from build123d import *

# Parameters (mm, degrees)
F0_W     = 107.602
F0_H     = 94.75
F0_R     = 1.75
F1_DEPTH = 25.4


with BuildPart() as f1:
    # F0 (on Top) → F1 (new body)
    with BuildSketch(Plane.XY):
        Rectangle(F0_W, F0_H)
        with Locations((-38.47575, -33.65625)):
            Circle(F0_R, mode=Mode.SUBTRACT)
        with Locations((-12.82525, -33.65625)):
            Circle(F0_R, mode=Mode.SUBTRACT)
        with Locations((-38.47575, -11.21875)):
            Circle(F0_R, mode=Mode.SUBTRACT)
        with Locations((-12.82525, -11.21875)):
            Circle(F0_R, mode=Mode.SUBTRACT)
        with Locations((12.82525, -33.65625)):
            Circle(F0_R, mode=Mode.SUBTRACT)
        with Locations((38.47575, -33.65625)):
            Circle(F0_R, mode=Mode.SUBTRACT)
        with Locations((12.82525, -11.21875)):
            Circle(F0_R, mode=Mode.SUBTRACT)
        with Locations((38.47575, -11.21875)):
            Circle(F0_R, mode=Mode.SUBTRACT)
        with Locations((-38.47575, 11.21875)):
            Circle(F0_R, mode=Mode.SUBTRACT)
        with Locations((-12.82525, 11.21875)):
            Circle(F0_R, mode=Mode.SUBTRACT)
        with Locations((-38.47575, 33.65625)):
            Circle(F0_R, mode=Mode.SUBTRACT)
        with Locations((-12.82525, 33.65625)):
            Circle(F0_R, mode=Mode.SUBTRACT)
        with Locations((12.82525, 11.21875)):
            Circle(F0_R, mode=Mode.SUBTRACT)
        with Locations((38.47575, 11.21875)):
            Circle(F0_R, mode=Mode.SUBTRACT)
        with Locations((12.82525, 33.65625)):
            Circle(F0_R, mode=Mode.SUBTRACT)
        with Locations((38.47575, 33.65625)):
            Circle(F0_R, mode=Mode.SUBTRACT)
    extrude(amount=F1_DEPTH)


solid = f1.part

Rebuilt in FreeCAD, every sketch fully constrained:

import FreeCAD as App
import Part
import Sketcher

V = App.Vector


def add_polygon(sketch, points):
    """Adds a closed chain of lines whose ends are joined by coincident constraints."""
    first, n = sketch.GeometryCount, len(points)
    for a, b in zip(points, points[1:] + points[:1]):
        sketch.addGeometry(Part.LineSegment(App.Vector(*a, 0), App.Vector(*b, 0)), False)
    for i in range(n):
        sketch.addConstraint(Sketcher.Constraint("Coincident", first + i, 2, first + (i + 1) % n, 1))

doc = App.newDocument("Part")
body = doc.addObject("PartDesign::Body", "Body")

sketch1 = body.newObject("Sketcher::SketchObject", "Sketch")
sketch1.AttachmentSupport = (doc.getObject("XY_Plane"), [""])
sketch1.MapMode = "FlatFace"
add_polygon(sketch1, [(-53.801, 47.375), (-53.801, -47.375), (53.801, -47.375), (53.801, 47.375)])
sketch1.addGeometry(Part.Circle(V(-38.47575, -33.65625, 0), V(0, 0, 1), 1.75), False)
sketch1.addGeometry(Part.Circle(V(-12.82525, -33.65625, 0), V(0, 0, 1), 1.75), False)
sketch1.addGeometry(Part.Circle(V(-38.47575, -11.21875, 0), V(0, 0, 1), 1.75), False)
sketch1.addGeometry(Part.Circle(V(-12.82525, -11.21875, 0), V(0, 0, 1), 1.75), False)
sketch1.addGeometry(Part.Circle(V(12.82525, -33.65625, 0), V(0, 0, 1), 1.75), False)
sketch1.addGeometry(Part.Circle(V(38.47575, -33.65625, 0), V(0, 0, 1), 1.75), False)
sketch1.addGeometry(Part.Circle(V(12.82525, -11.21875, 0), V(0, 0, 1), 1.75), False)
sketch1.addGeometry(Part.Circle(V(38.47575, -11.21875, 0), V(0, 0, 1), 1.75), False)
sketch1.addGeometry(Part.Circle(V(-38.47575, 11.21875, 0), V(0, 0, 1), 1.75), False)
sketch1.addGeometry(Part.Circle(V(-12.82525, 11.21875, 0), V(0, 0, 1), 1.75), False)
sketch1.addGeometry(Part.Circle(V(-38.47575, 33.65625, 0), V(0, 0, 1), 1.75), False)
sketch1.addGeometry(Part.Circle(V(-12.82525, 33.65625, 0), V(0, 0, 1), 1.75), False)
sketch1.addGeometry(Part.Circle(V(12.82525, 11.21875, 0), V(0, 0, 1), 1.75), False)
sketch1.addGeometry(Part.Circle(V(38.47575, 11.21875, 0), V(0, 0, 1), 1.75), False)
sketch1.addGeometry(Part.Circle(V(12.82525, 33.65625, 0), V(0, 0, 1), 1.75), False)
sketch1.addGeometry(Part.Circle(V(38.47575, 33.65625, 0), V(0, 0, 1), 1.75), False)
sketch1.addConstraint([
    Sketcher.Constraint("Vertical", 0),
    Sketcher.Constraint("Horizontal", 1),
    Sketcher.Constraint("Vertical", 2),
    Sketcher.Constraint("Horizontal", 3),
    Sketcher.Constraint("Equal", 4, 5),
    Sketcher.Constraint("Equal", 5, 6),
    Sketcher.Constraint("Equal", 6, 7),
    Sketcher.Constraint("Equal", 7, 8),
    Sketcher.Constraint("Equal", 8, 9),
    Sketcher.Constraint("Equal", 9, 10),
    Sketcher.Constraint("Equal", 10, 11),
    Sketcher.Constraint("Equal", 11, 12),
    Sketcher.Constraint("Equal", 12, 13),
    Sketcher.Constraint("Equal", 13, 14),
    Sketcher.Constraint("Equal", 14, 15),
    Sketcher.Constraint("Equal", 15, 16),
    Sketcher.Constraint("Equal", 16, 17),
    Sketcher.Constraint("Equal", 17, 18),
    Sketcher.Constraint("Equal", 18, 19),
    Sketcher.Constraint("Symmetric", 11, 3, 12, 3, -1, 1),
    Sketcher.Constraint("Symmetric", 10, 3, 13, 3, -1, 1),
    Sketcher.Constraint("Symmetric", 9, 3, 14, 3, -1, 1),
    Sketcher.Constraint("Symmetric", 8, 3, 15, 3, -1, 1),
    Sketcher.Constraint("Symmetric", 7, 3, 16, 3, -1, 1),
    Sketcher.Constraint("Symmetric", 6, 3, 17, 3, -1, 1),
    Sketcher.Constraint("Symmetric", 5, 3, 18, 3, -1, 1),
    Sketcher.Constraint("Symmetric", 4, 3, 19, 3, -1, 1),
    Sketcher.Constraint("Symmetric", 0, 2, 2, 2, -1, 1),
    Sketcher.Constraint("Symmetric", 5, 3, 8, 3, -2),
    Sketcher.Constraint("Symmetric", 4, 3, 9, 3, -2),
    Sketcher.Constraint("Symmetric", 7, 3, 10, 3, -2),
    Sketcher.Constraint("Symmetric", 6, 3, 11, 3, -2),
    Sketcher.Constraint("Horizontal", 4, 3, 5, 3),
    Sketcher.Constraint("Horizontal", 6, 3, 7, 3),
    Sketcher.Constraint("Vertical", 4, 3, 6, 3),
    Sketcher.Constraint("Vertical", 5, 3, 7, 3),
    Sketcher.Constraint("Diameter", 4, 3.5),
    Sketcher.Constraint("DistanceY", 0, 2, 0, 1, 94.75),
    Sketcher.Constraint("DistanceX", 1, 1, 1, 2, 107.602),
    Sketcher.Constraint("DistanceX", 4, 3, 8, 3, 51.301),
    Sketcher.Constraint("DistanceY", 4, 3, 12, 3, 44.875),
    Sketcher.Constraint("DistanceX", 4, 3, 5, 3, 25.6505),
    Sketcher.Constraint("DistanceY", 4, 3, 6, 3, 22.4375),
])
pad1 = body.newObject("PartDesign::Pad", "Pad")
pad1.Profile = sketch1
pad1.Length = 25.4

doc.recompute()
